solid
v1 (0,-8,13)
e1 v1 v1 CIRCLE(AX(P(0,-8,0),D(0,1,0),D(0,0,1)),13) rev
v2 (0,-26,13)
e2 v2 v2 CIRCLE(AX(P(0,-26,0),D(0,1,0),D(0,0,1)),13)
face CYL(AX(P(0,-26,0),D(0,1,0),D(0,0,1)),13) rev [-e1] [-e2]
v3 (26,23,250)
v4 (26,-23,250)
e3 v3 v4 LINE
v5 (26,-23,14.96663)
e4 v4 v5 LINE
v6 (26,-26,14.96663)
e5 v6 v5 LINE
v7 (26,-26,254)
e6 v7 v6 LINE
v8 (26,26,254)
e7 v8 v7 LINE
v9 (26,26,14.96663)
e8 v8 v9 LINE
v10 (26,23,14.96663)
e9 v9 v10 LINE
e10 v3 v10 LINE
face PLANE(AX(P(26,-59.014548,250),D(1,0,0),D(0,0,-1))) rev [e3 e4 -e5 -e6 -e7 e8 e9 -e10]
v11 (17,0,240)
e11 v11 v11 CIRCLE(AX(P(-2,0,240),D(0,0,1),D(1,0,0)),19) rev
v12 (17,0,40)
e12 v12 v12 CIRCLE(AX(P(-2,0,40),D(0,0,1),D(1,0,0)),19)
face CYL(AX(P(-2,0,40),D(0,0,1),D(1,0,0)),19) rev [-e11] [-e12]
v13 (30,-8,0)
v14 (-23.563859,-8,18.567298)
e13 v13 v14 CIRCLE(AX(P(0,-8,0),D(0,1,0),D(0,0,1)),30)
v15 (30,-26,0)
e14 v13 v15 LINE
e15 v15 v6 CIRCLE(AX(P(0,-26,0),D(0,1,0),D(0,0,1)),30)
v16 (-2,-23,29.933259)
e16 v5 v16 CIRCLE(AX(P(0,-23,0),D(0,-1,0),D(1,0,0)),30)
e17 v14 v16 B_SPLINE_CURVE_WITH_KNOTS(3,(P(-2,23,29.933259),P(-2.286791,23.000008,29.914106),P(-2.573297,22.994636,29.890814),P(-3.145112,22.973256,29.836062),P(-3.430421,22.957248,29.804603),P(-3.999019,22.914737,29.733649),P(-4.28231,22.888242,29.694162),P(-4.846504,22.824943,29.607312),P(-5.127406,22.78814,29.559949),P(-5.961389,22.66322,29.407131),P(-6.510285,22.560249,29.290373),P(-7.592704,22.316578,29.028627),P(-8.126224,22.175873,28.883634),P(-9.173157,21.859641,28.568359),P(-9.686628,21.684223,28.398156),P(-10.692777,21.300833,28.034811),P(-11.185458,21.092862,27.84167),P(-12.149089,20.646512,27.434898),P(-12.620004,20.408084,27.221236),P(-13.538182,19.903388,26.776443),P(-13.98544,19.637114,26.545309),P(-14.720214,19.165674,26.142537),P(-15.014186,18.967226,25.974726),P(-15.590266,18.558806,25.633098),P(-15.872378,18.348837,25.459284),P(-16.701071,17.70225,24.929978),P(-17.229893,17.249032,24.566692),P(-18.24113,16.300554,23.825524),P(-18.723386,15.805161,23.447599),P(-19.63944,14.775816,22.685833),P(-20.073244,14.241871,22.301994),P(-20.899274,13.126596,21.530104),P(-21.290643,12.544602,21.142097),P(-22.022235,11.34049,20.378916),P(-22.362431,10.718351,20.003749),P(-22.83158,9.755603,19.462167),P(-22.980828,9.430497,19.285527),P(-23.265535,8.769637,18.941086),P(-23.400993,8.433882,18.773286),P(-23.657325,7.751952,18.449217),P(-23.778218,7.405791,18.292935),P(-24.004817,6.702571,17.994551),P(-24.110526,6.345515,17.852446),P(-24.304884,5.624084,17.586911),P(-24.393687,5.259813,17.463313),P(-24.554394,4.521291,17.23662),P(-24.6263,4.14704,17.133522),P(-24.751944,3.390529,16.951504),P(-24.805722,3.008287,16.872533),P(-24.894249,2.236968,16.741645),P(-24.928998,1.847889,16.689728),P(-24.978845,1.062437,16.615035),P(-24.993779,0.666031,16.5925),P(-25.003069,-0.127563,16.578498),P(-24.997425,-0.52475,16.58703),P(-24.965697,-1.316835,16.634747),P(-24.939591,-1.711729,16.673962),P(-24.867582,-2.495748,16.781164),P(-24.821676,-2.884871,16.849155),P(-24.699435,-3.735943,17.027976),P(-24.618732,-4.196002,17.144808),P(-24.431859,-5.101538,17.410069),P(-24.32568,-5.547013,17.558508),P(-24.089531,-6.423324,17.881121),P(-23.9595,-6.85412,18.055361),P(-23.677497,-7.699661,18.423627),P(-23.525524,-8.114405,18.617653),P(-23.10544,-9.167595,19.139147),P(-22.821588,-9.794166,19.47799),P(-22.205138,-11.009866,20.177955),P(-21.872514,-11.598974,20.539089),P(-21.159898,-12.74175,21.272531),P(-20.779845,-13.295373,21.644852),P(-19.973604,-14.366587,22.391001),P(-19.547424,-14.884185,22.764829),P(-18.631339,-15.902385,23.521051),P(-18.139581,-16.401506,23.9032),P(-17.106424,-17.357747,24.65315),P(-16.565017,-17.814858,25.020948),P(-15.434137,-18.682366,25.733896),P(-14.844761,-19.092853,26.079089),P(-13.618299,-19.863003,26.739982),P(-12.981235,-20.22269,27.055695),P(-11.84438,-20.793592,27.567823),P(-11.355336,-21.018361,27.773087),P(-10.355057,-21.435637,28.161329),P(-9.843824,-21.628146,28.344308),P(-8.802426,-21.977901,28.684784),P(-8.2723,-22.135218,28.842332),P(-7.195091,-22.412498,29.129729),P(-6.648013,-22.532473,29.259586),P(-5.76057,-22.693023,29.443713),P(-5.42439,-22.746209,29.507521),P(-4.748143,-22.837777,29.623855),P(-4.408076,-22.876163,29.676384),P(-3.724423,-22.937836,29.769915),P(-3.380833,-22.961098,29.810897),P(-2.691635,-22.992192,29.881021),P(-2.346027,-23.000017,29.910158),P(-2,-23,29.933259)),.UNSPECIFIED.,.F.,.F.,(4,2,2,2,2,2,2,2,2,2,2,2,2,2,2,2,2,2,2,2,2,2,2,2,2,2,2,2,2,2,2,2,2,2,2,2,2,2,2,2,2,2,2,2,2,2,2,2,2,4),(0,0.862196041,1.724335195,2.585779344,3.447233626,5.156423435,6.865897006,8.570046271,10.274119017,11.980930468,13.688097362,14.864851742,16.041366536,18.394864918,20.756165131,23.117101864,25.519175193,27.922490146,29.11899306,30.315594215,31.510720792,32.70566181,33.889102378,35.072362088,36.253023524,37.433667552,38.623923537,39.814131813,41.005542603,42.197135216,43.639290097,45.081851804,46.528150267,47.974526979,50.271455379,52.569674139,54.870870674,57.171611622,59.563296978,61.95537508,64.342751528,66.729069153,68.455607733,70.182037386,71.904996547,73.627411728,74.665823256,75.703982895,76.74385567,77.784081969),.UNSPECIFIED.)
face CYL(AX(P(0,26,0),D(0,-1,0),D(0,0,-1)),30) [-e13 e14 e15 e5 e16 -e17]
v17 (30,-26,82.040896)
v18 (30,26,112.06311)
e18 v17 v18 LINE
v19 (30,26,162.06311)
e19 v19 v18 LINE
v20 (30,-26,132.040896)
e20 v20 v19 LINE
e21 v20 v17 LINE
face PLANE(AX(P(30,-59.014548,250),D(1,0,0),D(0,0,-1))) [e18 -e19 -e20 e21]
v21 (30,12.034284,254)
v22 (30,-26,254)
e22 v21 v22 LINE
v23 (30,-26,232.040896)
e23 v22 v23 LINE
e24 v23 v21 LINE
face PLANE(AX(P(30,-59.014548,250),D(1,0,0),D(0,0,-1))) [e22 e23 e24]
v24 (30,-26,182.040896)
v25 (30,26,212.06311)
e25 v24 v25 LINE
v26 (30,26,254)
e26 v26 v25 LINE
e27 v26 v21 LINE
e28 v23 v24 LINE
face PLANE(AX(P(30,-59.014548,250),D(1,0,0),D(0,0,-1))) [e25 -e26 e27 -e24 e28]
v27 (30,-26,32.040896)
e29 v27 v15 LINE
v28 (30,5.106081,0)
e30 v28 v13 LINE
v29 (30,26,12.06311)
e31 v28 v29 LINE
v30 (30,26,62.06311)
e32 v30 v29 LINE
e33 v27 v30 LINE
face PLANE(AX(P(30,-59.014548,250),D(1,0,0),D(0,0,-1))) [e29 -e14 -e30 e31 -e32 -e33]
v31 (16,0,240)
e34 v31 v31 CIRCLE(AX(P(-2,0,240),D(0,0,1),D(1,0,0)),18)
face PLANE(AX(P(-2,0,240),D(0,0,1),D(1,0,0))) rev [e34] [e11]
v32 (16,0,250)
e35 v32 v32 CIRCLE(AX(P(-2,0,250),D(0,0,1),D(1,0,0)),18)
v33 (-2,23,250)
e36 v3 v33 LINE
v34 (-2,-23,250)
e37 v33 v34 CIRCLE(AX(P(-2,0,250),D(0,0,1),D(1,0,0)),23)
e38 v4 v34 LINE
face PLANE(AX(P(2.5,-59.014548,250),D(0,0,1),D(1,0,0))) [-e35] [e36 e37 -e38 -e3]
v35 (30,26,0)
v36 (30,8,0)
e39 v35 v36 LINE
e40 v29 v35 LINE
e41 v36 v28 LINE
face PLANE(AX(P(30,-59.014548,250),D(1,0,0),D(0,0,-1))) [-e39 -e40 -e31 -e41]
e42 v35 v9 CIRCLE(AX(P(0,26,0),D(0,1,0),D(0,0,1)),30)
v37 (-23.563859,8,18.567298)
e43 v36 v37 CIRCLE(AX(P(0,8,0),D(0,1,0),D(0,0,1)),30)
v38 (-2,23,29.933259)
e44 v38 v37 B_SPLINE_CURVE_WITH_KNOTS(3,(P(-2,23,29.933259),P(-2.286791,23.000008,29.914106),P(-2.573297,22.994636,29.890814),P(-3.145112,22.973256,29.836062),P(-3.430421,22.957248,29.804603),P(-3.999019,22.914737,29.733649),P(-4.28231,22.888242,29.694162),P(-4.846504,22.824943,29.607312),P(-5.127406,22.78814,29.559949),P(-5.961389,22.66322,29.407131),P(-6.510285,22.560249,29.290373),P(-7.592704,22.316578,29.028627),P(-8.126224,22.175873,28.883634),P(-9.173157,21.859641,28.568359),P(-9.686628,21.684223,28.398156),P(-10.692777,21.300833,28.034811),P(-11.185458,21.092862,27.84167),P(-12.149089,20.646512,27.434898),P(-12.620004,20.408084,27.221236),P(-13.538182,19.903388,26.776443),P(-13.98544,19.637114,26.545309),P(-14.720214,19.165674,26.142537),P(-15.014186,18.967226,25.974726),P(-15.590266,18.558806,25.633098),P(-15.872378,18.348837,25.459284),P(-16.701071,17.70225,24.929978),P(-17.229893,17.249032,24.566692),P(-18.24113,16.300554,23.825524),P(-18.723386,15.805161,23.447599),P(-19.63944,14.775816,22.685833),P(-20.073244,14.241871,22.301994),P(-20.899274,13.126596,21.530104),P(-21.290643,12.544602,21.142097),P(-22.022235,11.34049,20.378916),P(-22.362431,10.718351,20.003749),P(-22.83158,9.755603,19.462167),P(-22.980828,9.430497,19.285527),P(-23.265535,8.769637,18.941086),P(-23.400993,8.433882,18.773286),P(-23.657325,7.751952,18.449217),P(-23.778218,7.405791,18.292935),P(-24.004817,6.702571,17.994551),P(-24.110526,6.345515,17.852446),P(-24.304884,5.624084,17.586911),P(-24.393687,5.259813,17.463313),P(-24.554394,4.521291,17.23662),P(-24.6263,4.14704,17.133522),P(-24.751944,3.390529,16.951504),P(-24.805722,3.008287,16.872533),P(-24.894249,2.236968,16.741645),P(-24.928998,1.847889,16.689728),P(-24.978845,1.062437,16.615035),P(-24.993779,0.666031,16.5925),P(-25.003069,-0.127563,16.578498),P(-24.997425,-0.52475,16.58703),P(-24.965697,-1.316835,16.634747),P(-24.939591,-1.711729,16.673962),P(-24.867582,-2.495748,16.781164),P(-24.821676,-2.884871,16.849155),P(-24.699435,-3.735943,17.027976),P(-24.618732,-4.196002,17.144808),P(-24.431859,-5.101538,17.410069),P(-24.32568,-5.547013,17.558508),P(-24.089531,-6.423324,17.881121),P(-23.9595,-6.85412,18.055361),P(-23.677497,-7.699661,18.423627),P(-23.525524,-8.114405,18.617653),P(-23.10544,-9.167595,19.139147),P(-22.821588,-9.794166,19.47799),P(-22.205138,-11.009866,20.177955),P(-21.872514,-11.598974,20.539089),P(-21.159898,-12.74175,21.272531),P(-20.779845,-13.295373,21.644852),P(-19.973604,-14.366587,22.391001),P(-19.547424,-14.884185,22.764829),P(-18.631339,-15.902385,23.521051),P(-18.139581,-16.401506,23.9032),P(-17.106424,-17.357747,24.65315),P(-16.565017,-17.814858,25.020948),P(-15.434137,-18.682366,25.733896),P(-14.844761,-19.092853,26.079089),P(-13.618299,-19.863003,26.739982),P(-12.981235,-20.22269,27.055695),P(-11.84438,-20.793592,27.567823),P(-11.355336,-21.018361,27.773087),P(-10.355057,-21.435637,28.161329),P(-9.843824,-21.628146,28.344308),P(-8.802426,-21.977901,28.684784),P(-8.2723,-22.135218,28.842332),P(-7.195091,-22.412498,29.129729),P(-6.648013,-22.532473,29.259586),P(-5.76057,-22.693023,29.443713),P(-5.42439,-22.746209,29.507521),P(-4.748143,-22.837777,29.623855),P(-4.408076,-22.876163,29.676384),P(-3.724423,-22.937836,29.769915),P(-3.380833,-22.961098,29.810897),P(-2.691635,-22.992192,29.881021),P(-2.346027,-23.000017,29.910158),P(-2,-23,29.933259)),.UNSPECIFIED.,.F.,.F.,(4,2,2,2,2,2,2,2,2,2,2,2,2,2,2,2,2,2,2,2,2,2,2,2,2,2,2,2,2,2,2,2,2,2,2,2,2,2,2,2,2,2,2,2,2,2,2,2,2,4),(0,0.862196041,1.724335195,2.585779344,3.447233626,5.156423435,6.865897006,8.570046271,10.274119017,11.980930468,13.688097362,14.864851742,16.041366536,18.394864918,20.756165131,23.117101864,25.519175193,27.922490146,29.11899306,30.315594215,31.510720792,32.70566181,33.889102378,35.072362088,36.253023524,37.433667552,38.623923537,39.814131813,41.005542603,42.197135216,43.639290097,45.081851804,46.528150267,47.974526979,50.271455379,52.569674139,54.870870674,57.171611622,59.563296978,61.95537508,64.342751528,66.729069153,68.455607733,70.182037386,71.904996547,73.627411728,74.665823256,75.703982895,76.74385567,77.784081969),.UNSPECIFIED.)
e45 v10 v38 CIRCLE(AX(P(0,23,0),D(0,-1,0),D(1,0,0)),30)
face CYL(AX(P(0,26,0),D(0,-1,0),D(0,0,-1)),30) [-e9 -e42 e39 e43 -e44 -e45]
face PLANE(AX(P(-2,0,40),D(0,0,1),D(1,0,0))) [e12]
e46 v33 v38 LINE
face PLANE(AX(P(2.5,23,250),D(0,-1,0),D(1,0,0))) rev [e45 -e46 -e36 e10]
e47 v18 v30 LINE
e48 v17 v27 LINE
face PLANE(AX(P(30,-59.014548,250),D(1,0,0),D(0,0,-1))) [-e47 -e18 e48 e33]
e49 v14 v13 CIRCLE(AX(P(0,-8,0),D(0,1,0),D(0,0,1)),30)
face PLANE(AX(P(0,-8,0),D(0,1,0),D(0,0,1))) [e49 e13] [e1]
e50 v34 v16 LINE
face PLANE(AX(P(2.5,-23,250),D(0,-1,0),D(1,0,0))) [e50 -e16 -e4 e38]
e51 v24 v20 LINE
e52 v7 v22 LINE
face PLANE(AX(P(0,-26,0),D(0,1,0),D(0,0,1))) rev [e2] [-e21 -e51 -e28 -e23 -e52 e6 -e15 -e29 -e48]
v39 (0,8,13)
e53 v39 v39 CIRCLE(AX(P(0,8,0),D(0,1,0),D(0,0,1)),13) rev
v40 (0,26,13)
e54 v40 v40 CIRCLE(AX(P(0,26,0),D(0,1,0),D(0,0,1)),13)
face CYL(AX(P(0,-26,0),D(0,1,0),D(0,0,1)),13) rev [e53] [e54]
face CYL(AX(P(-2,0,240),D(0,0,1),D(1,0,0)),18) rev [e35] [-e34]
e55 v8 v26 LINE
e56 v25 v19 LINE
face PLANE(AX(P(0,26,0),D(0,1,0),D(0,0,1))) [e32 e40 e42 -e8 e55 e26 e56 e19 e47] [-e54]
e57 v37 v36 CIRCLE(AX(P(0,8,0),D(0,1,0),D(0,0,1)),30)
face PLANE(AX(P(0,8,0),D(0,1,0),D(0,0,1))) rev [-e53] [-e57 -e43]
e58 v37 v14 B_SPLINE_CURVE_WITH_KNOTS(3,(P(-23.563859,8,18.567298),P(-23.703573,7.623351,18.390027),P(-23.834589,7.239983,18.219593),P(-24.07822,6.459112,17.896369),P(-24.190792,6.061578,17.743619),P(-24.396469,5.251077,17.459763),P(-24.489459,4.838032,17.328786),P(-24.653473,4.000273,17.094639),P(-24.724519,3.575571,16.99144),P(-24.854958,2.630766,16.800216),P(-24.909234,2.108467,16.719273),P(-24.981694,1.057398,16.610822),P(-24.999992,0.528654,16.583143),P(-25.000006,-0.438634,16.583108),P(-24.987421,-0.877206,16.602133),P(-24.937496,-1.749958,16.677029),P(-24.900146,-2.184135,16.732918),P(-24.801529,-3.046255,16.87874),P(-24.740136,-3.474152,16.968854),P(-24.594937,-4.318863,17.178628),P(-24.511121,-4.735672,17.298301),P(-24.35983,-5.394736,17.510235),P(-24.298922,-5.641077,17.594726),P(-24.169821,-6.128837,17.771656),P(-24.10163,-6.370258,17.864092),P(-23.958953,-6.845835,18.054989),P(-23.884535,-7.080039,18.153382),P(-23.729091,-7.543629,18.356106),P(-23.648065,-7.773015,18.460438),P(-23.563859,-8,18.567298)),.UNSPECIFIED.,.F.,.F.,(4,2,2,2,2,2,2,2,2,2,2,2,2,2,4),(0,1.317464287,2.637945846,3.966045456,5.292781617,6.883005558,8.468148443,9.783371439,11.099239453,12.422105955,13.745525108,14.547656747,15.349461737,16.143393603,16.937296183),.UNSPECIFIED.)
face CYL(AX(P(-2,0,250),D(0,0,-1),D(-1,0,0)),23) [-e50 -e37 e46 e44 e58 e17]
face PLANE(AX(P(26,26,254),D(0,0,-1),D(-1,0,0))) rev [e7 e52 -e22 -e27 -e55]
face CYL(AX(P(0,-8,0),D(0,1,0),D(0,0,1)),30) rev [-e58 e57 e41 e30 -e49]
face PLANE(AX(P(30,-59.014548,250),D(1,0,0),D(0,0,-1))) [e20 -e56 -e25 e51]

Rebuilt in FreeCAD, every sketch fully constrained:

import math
import FreeCAD as App
import Part
import Sketcher

V = App.Vector
Q = App.Units.Quantity


def add_polygon(sketch, points):
    """Adds a closed chain of lines whose ends are joined by coincident constraints."""
    first, n = sketch.GeometryCount, len(points)
    for a, b in zip(points, points[1:] + points[:1]):
        sketch.addGeometry(Part.LineSegment(App.Vector(*a, 0), App.Vector(*b, 0)), False)
    for i in range(n):
        sketch.addConstraint(Sketcher.Constraint("Coincident", first + i, 2, first + (i + 1) % n, 1))

doc = App.newDocument("Part")
body = doc.addObject("PartDesign::Body", "Body")

sketch1 = doc.addObject("Sketcher::SketchObject", "Sketch")
body.addObject(sketch1)
sketch1.AttachmentSupport = (doc.XZ_Plane, [""])
sketch1.MapMode = "FlatFace"
sketch1.addGeometry(Part.Circle(V(0, 0, 0), V(0, 0, 1), 30), False)
sketch1.addConstraint(Sketcher.Constraint("Coincident", 0, 3, -1, 1))
sketch1.addConstraint(Sketcher.Constraint("Diameter", 0, Q("60 mm")))
pad1 = doc.addObject("PartDesign::Pad", "Pad")
body.addObject(pad1)
pad1.Profile = sketch1
pad1.Length = 52
pad1.Midplane = True

sketch2 = doc.addObject("Sketcher::SketchObject", "Sketch001")
body.addObject(sketch2)
sketch2.AttachmentSupport = (doc.XY_Plane, [""])
sketch2.MapMode = "FlatFace"
sketch2.addGeometry(Part.LineSegment(V(26, 26, 0), V(26, 23, 0)), False)
sketch2.addGeometry(Part.LineSegment(V(26, 23, 0), V(-2, 23, 0)), False)
sketch2.addGeometry(Part.ArcOfCircle(Part.Circle(V(-2, 0, 0), V(0, 0, 1), 23), math.radians(90), math.radians(270)), False)
sketch2.addGeometry(Part.LineSegment(V(-2, -23, 0), V(26, -23, 0)), False)
sketch2.addGeometry(Part.LineSegment(V(26, -23, 0), V(26, -26, 0)), False)
sketch2.addGeometry(Part.LineSegment(V(26, -26, 0), V(30, -26, 0)), False)
sketch2.addGeometry(Part.LineSegment(V(30, -26, 0), V(30, 26, 0)), False)
sketch2.addGeometry(Part.LineSegment(V(30, 26, 0), V(26, 26, 0)), False)
sketch2.addConstraint(Sketcher.Constraint("Coincident", 0, 2, 1, 1))
sketch2.addConstraint(Sketcher.Constraint("Tangent", 1, 2, 2, 1))
sketch2.addConstraint(Sketcher.Constraint("Tangent", 2, 2, 3, 1))
sketch2.addConstraint(Sketcher.Constraint("Coincident", 3, 2, 4, 1))
sketch2.addConstraint(Sketcher.Constraint("Coincident", 4, 2, 5, 1))
sketch2.addConstraint(Sketcher.Constraint("Coincident", 5, 2, 6, 1))
sketch2.addConstraint(Sketcher.Constraint("Coincident", 6, 2, 7, 1))
sketch2.addConstraint(Sketcher.Constraint("Coincident", 7, 2, 0, 1))
sketch2.addConstraint(Sketcher.Constraint("Vertical", 0))
sketch2.addConstraint(Sketcher.Constraint("Horizontal", 1))
sketch2.addConstraint(Sketcher.Constraint("Horizontal", 3))
sketch2.addConstraint(Sketcher.Constraint("Vertical", 4))
sketch2.addConstraint(Sketcher.Constraint("Horizontal", 5))
sketch2.addConstraint(Sketcher.Constraint("Vertical", 6))
sketch2.addConstraint(Sketcher.Constraint("Horizontal", 7))
sketch2.addConstraint(Sketcher.Constraint("Symmetric", 0, 2, 3, 2, -1))
sketch2.addConstraint(Sketcher.Constraint("Equal", 0, 4))
sketch2.addConstraint(Sketcher.Constraint("Radius", 2, Q("23 mm")))
sketch2.addConstraint(Sketcher.Constraint("DistanceX", 1, 2, 1, 1, Q("28 mm")))
sketch2.addConstraint(Sketcher.Constraint("DistanceX", 5, 1, 5, 2, Q("4 mm")))
sketch2.addConstraint(Sketcher.Constraint("DistanceY", 0, 2, 0, 1, Q("3 mm")))
sketch2.addConstraint(Sketcher.Constraint("DistanceX", 2, 3, -1, 1, Q("2 mm")))
pad2 = doc.addObject("PartDesign::Pad", "Pad001")
body.addObject(pad2)
pad2.Profile = sketch2
pad2.Length = 250

sketch3 = doc.addObject("Sketcher::SketchObject", "Sketch002")
body.addObject(sketch3)
sketch3.AttachmentSupport = (doc.XZ_Plane, [""])
sketch3.MapMode = "FlatFace"
sketch3.addGeometry(Part.Circle(V(0, 0, 0), V(0, 0, 1), 13), False)
sketch3.addConstraint(Sketcher.Constraint("Coincident", 0, 3, -1, 1))
sketch3.addConstraint(Sketcher.Constraint("Diameter", 0, Q("26 mm")))
pocket1 = doc.addObject("PartDesign::Pocket", "Pocket")
body.addObject(pocket1)
pocket1.Profile = sketch3
pocket1.Length = 52
pocket1.Midplane = True

sketch4 = doc.addObject("Sketcher::SketchObject", "Sketch003")
body.addObject(sketch4)
sketch4.AttachmentSupport = (doc.XZ_Plane, [""])
sketch4.MapMode = "FlatFace"
sketch4.addGeometry(Part.Circle(V(0, 0, 0), V(0, 0, 1), 30), False)
sketch4.addConstraint(Sketcher.Constraint("Coincident", 0, 3, -1, 1))
sketch4.addConstraint(Sketcher.Constraint("Diameter", 0, Q("60 mm")))
pocket2 = doc.addObject("PartDesign::Pocket", "Pocket001")
body.addObject(pocket2)
pocket2.Profile = sketch4
pocket2.Length = 8
pocket2.Reversed = True

sketch5 = doc.addObject("Sketcher::SketchObject", "Sketch004")
body.addObject(sketch5)
sketch5.AttachmentSupport = (doc.XZ_Plane, [""])
sketch5.MapMode = "FlatFace"
sketch5.addGeometry(Part.Circle(V(0, 0, 0), V(0, 0, 1), 30), False)
sketch5.addConstraint(Sketcher.Constraint("Coincident", 0, 3, -1, 1))
sketch5.addConstraint(Sketcher.Constraint("Diameter", 0, Q("60 mm")))
pocket3 = doc.addObject("PartDesign::Pocket", "Pocket002")
body.addObject(pocket3)
pocket3.Profile = sketch5
pocket3.Length = 8

sketch6 = doc.addObject("Sketcher::SketchObject", "Sketch005")
body.addObject(sketch6)
sketch6.AttachmentSupport = (doc.XY_Plane, [""])
sketch6.MapMode = "FlatFace"
sketch6.AttachmentOffset = App.Placement(V(0, 0, 250), App.Rotation())
sketch6.addGeometry(Part.Circle(V(-2, 0, 0), V(0, 0, 1), 19), False)
sketch6.addConstraint(Sketcher.Constraint("PointOnObject", 0, 3, -1))
sketch6.addConstraint(Sketcher.Constraint("Diameter", 0, Q("38 mm")))
sketch6.addConstraint(Sketcher.Constraint("DistanceX", 0, 3, -1, 1, Q("2 mm")))
pocket4 = doc.addObject("PartDesign::Pocket", "Pocket003")
body.addObject(pocket4)
pocket4.Profile = sketch6
pocket4.Length = 210

sketch7 = doc.addObject("Sketcher::SketchObject", "Sketch006")
body.addObject(sketch7)
sketch7.AttachmentSupport = (doc.XZ_Plane, [""])
sketch7.MapMode = "FlatFace"
add_polygon(sketch7, [(26, 250), (26, 254), (30, 254), (30, 250)])
sketch7.addConstraint(Sketcher.Constraint("Vertical", 0))
sketch7.addConstraint(Sketcher.Constraint("Horizontal", 1))
sketch7.addConstraint(Sketcher.Constraint("Vertical", 2))
sketch7.addConstraint(Sketcher.Constraint("Horizontal", 3))
sketch7.addConstraint(Sketcher.Constraint("Equal", 3, 0))
sketch7.addConstraint(Sketcher.Constraint("DistanceX", 1, 1, 1, 2, Q("4 mm")))
sketch7.addConstraint(Sketcher.Constraint("DistanceX", -1, 1, 0, 2, Q("26 mm")))
sketch7.addConstraint(Sketcher.Constraint("DistanceY", -1, 1, 0, 2, Q("254 mm")))
pad3 = doc.addObject("PartDesign::Pad", "Pad002")
body.addObject(pad3)
pad3.Profile = sketch7
pad3.Length = 52
pad3.Midplane = True

sketch8 = doc.addObject("Sketcher::SketchObject", "Sketch007")
body.addObject(sketch8)
sketch8.AttachmentSupport = (doc.XY_Plane, [""])
sketch8.MapMode = "FlatFace"
sketch8.AttachmentOffset = App.Placement(V(0, 0, 250), App.Rotation())
sketch8.addGeometry(Part.Circle(V(-2, 0, 0), V(0, 0, 1), 19), False)
sketch8.addGeometry(Part.Circle(V(-2, 0, 0), V(0, 0, 1), 18), False)
sketch8.addConstraint(Sketcher.Constraint("Coincident", 1, 3, 0, 3))
sketch8.addConstraint(Sketcher.Constraint("PointOnObject", 0, 3, -1))
sketch8.addConstraint(Sketcher.Constraint("Diameter", 0, Q("38 mm")))
sketch8.addConstraint(Sketcher.Constraint("Diameter", 1, Q("36 mm")))
sketch8.addConstraint(Sketcher.Constraint("DistanceX", 0, 3, -1, 1, Q("2 mm")))
pad4 = doc.addObject("PartDesign::Pad", "Pad003")
body.addObject(pad4)
pad4.Profile = sketch8
pad4.Length = 10
pad4.Reversed = True

doc.recompute()
